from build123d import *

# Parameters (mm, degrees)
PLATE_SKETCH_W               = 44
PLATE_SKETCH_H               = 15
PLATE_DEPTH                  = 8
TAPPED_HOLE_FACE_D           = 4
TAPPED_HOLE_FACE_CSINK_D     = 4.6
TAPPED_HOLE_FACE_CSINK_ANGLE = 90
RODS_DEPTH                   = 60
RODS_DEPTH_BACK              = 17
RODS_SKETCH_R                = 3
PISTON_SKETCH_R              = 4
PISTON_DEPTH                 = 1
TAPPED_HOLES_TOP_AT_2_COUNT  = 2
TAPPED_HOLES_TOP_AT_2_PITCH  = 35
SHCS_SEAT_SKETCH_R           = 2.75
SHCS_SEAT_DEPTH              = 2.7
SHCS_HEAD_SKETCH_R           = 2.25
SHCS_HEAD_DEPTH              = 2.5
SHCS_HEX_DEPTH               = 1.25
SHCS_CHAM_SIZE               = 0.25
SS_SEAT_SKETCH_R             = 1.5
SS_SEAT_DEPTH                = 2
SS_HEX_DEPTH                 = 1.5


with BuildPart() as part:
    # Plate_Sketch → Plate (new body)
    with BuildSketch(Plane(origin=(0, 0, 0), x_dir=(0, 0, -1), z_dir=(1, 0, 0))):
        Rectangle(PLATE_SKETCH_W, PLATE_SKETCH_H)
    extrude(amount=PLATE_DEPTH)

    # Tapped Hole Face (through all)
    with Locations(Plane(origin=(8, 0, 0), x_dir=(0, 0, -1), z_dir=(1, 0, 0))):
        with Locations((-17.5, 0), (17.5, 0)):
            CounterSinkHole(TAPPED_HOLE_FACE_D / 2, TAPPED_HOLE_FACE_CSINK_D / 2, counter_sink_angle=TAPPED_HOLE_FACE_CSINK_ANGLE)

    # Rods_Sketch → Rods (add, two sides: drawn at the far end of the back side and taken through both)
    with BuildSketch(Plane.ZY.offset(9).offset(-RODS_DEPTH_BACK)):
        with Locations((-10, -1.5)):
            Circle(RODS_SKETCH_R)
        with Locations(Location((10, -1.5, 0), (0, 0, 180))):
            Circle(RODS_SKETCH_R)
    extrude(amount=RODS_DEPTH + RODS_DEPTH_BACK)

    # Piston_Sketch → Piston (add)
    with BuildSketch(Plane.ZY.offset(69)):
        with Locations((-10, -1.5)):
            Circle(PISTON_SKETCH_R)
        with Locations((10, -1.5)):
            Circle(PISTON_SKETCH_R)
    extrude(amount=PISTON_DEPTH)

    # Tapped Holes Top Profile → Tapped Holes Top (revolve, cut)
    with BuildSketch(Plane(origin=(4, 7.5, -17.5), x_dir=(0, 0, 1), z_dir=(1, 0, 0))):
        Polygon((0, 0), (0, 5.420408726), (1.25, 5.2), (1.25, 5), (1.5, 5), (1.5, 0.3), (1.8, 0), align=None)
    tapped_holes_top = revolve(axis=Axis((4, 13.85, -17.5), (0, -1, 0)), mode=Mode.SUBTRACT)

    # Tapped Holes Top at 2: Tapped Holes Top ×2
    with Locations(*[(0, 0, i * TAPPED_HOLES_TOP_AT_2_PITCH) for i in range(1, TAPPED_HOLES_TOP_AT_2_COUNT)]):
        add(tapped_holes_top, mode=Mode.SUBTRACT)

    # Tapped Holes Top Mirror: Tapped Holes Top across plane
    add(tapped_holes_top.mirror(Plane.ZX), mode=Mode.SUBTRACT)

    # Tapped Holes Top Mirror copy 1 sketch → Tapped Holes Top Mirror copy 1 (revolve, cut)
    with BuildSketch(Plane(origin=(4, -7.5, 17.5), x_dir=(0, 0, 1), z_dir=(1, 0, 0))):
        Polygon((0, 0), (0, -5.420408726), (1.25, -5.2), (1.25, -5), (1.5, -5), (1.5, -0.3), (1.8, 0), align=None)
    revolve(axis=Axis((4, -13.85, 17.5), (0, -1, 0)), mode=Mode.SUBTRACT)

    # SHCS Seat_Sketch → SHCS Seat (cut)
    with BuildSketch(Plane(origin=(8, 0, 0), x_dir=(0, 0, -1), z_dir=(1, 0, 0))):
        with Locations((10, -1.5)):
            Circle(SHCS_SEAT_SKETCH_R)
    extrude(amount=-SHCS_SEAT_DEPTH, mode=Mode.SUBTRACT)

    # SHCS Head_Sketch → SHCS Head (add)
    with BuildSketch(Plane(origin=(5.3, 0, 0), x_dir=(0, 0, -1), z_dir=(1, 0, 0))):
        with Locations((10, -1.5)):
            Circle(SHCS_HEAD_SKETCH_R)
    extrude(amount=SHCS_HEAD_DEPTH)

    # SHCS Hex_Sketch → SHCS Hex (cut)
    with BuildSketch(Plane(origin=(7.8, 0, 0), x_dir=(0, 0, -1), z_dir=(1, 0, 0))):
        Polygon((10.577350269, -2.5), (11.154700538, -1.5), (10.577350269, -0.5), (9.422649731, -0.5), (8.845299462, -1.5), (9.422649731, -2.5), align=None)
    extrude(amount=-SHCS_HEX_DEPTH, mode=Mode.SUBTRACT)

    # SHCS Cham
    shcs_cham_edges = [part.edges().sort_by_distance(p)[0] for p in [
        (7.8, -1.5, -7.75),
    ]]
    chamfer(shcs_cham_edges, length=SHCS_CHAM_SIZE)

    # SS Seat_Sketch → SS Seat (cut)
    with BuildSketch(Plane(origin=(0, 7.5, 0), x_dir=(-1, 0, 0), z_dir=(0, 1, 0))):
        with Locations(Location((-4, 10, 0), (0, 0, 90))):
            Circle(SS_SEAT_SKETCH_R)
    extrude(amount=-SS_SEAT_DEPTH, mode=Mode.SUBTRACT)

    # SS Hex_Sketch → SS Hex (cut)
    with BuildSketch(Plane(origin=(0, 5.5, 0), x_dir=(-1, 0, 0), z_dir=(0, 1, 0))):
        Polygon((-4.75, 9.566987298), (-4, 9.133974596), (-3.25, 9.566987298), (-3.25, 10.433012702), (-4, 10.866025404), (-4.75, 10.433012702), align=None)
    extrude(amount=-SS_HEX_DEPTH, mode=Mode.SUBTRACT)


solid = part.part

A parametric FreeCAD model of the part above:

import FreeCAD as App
import Part
import Sketcher
from FreeCAD import Vector
Q = App.Units.Quantity


def edges_at(feature, points):
    """Names of the edges that pass closest to the given points."""
    edges = feature.Shape.Edges
    near = lambda p: min(range(len(edges)), key=lambda i: edges[i].distToShape(Part.Vertex(*p))[0])
    return sorted({f"Edge{near(p) + 1}" for p in points})


def add_polygon(sketch, points):
    """Adds a closed chain of lines whose ends are joined by coincident constraints."""
    first, n = sketch.GeometryCount, len(points)
    for a, b in zip(points, points[1:] + points[:1]):
        sketch.addGeometry(Part.LineSegment(App.Vector(*a, 0), App.Vector(*b, 0)), False)
    for i in range(n):
        sketch.addConstraint(Sketcher.Constraint("Coincident", first + i, 2, first + (i + 1) % n, 1))

doc = App.newDocument("Part")
params = doc.addObject("Spreadsheet::Sheet", "Params")
for row, (alias, value) in enumerate([
    ("sketch1_width", "15 mm"),
    ("sketch1_height", "44 mm"),
    ("pad1_length", "8 mm"),
    ("sketch2_diameter", "4 mm"),
    ("hole_diameter", "4 mm"),
    ("hole_csink_diameter", "4.6 mm"),
    ("sketch3_diameter", "6 mm"),
    ("pad2_length", "60 mm"),
    ("pad2_length2", "17 mm"),
    ("sketch4_diameter", "8 mm"),
    ("pad3_length", "1 mm"),
    ("sketch5_width", "4.7 mm"),
    ("sketch5_width2", "0.2 mm"),
    ("sketch5_height", "1.8 mm"),
    ("sketch5_height2", "0.25 mm"),
    ("groove_angle", "360 deg"),
    ("linearpattern_pitch", "35 mm"),
    ("sketch6_width", "0.2 mm"),
    ("sketch6_width2", "4.7 mm"),
    ("sketch6_height", "1.8 mm"),
    ("sketch6_height2", "0.25 mm"),
    ("groove2_angle", "360 deg"),
    ("sketch7_diameter", "5.5 mm"),
    ("pocket1_length", "2.7 mm"),
    ("sketch8_diameter", "4.5 mm"),
    ("pad4_length", "2.5 mm"),
    ("pocket2_length", "1.25 mm"),
    ("chamfer_size", "0.25 mm"),
    ("sketch10_diameter", "3 mm"),
    ("pocket3_length", "2 mm"),
    ("pocket4_length", "1.5 mm"),
], start=1):
    params.set(f"A{row}", alias)
    params.set(f"B{row}", "=" + value)
    params.setAlias(f"B{row}", alias)

body = doc.addObject("PartDesign::Body", "Body")

sketch1 = body.newObject("Sketcher::SketchObject", "Sketch")
sketch1.AttachmentSupport = (doc.getObject("YZ_Plane"), [""])
sketch1.MapMode = "FlatFace"
add_polygon(sketch1, [(8, 22), (-8, 22), (-8, -22), (8, -22)])
sketch1.addConstraint(Sketcher.Constraint("Horizontal", 0))
sketch1.addConstraint(Sketcher.Constraint("Vertical", 1))
sketch1.addConstraint(Sketcher.Constraint("Horizontal", 2))
sketch1.addConstraint(Sketcher.Constraint("Vertical", 3))
sketch1.addConstraint(Sketcher.Constraint("Symmetric", 0, 2, 2, 2, -1, 1))
sketch1.addConstraint(Sketcher.Constraint("DistanceX", 0, 2, 0, 1, Q("15 mm")))
sketch1.addConstraint(Sketcher.Constraint("DistanceY", 1, 2, 1, 1, Q("44 mm")))
sketch1.setExpression("Constraints[9]", "Params.sketch1_width")
sketch1.setExpression("Constraints[10]", "Params.sketch1_height")
pad1 = body.newObject("PartDesign::Pad", "Pad")
pad1.Profile = sketch1
pad1.setExpression("Length", "Params.pad1_length")

sketch2 = body.newObject("Sketcher::SketchObject", "Sketch001")
sketch2.AttachmentSupport = (doc.getObject("YZ_Plane"), [""])
sketch2.MapMode = "FlatFace"
sketch2.AttachmentOffset = App.Placement(Vector(0, 0, 8), App.Rotation())
sketch2.addGeometry(Part.Circle(Vector(0, 17.5, 0), Vector(0, 0, 1), 2), False)
sketch2.addGeometry(Part.Circle(Vector(0, -17.5, 0), Vector(0, 0, 1), 2), False)
sketch2.addConstraint(Sketcher.Constraint("Equal", 0, 1))
sketch2.addConstraint(Sketcher.Constraint("Symmetric", 0, 3, 1, 3, -1, 1))
sketch2.addConstraint(Sketcher.Constraint("PointOnObject", 0, 3, -2))
sketch2.addConstraint(Sketcher.Constraint("Diameter", 0, Q("4 mm")))
sketch2.addConstraint(Sketcher.Constraint("DistanceY", 1, 3, 0, 3, Q("35 mm")))
sketch2.setExpression("Constraints[3]", "Params.sketch2_diameter")
doc.recompute()
hole = body.newObject("PartDesign::Hole", "Hole")
hole.Profile = sketch2
hole.ThreadType = "None"
hole.setExpression("Diameter", "Params.hole_diameter")
hole.DepthType = "ThroughAll"
hole.HoleCutType = "Countersink"
hole.setExpression("HoleCutDiameter", "Params.hole_csink_diameter")
hole.HoleCutCountersinkAngle = 90

sketch3 = body.newObject("Sketcher::SketchObject", "Sketch002")
sketch3.AttachmentSupport = (doc.getObject("YZ_Plane"), [""])
sketch3.MapMode = "FlatFace"
sketch3.AttachmentOffset = App.Placement(Vector(0, 0, -9), App.Rotation())
sketch3.addGeometry(Part.Circle(Vector(-1.5, -10, 0), Vector(0, 0, 1), 3), False)
sketch3.addGeometry(Part.Circle(Vector(-1.5, 10, 0), Vector(0, 0, 1), 3), False)
sketch3.addConstraint(Sketcher.Constraint("Equal", 0, 1))
sketch3.addConstraint(Sketcher.Constraint("Symmetric", 0, 3, 1, 3, -1))
sketch3.addConstraint(Sketcher.Constraint("Diameter", 0, Q("6 mm")))
sketch3.addConstraint(Sketcher.Constraint("DistanceY", 0, 3, -1, 1, Q("10 mm")))
sketch3.addConstraint(Sketcher.Constraint("DistanceX", 0, 3, -1, 1, Q("1.5 mm")))
sketch3.setExpression("Constraints[2]", "Params.sketch3_diameter")
pad2 = body.newObject("PartDesign::Pad", "Pad001")
pad2.Profile = sketch3
pad2.Type = "TwoLengths"
pad2.setExpression("Length", "Params.pad2_length")
pad2.setExpression("Length2", "Params.pad2_length2")
pad2.Reversed = True

sketch4 = body.newObject("Sketcher::SketchObject", "Sketch003")
sketch4.AttachmentSupport = (doc.getObject("YZ_Plane"), [""])
sketch4.MapMode = "FlatFace"
sketch4.AttachmentOffset = App.Placement(Vector(0, 0, -69), App.Rotation())
sketch4.addGeometry(Part.Circle(Vector(-1.5, -10, 0), Vector(0, 0, 1), 4), False)
sketch4.addGeometry(Part.Circle(Vector(-1.5, 10, 0), Vector(0, 0, 1), 4), False)
sketch4.addConstraint(Sketcher.Constraint("Equal", 0, 1))
sketch4.addConstraint(Sketcher.Constraint("Symmetric", 0, 3, 1, 3, -1))
sketch4.addConstraint(Sketcher.Constraint("Diameter", 0, Q("8 mm")))
sketch4.addConstraint(Sketcher.Constraint("DistanceY", 0, 3, -1, 1, Q("10 mm")))
sketch4.addConstraint(Sketcher.Constraint("DistanceX", 0, 3, -1, 1, Q("1.5 mm")))
sketch4.setExpression("Constraints[2]", "Params.sketch4_diameter")
pad3 = body.newObject("PartDesign::Pad", "Pad002")
pad3.Profile = sketch4
pad3.setExpression("Length", "Params.pad3_length")
pad3.Reversed = True

sketch5 = body.newObject("Sketcher::SketchObject", "Sketch004")
sketch5.AttachmentSupport = (doc.getObject("YZ_Plane"), [""])
sketch5.MapMode = "FlatFace"
sketch5.AttachmentOffset = App.Placement(Vector(0, 0, 4), App.Rotation())
add_polygon(sketch5, [(2.08, -17.5), (7.5, -17.5), (7.5, -15.7), (7.2, -16), (2.5, -16), (2.5, -16.25), (2.3, -16.25)])
sketch5.addGeometry(Part.LineSegment(Vector(7.5, -17.5, 0), Vector(2.08, -17.5, 0)), True)
sketch5.addConstraint(Sketcher.Constraint("Horizontal", 0))
sketch5.addConstraint(Sketcher.Constraint("Vertical", 1))
sketch5.addConstraint(Sketcher.Constraint("Horizontal", 3))
sketch5.addConstraint(Sketcher.Constraint("Vertical", 4))
sketch5.addConstraint(Sketcher.Constraint("Horizontal", 5))
sketch5.addConstraint(Sketcher.Constraint("Horizontal", 7))
sketch5.addConstraint(Sketcher.Constraint("Coincident", 7, 1, 0, 2))
sketch5.addConstraint(Sketcher.Constraint("Equal", 0, 7))
sketch5.addConstraint(Sketcher.Constraint("Angle", 2, Q("-135 deg")))
sketch5.addConstraint(Sketcher.Constraint("Angle", 6, Q("-100 deg")))
sketch5.addConstraint(Sketcher.Constraint("DistanceX", 3, 2, 3, 1, Q("4.7 mm")))
sketch5.addConstraint(Sketcher.Constraint("DistanceX", 5, 2, 5, 1, Q("0.2 mm")))
sketch5.addConstraint(Sketcher.Constraint("DistanceY", 1, 1, 1, 2, Q("1.8 mm")))
sketch5.addConstraint(Sketcher.Constraint("DistanceY", 2, 2, -1, 1, Q("16 mm")))
sketch5.addConstraint(Sketcher.Constraint("DistanceX", 3, 2, 1, 2, Q("5 mm")))
sketch5.addConstraint(Sketcher.Constraint("DistanceY", 4, 2, 4, 1, Q("0.25 mm")))
sketch5.addConstraint(Sketcher.Constraint("DistanceX", -1, 1, 0, 2, Q("7.5 mm")))
sketch5.setExpression("Constraints[17]", "Params.sketch5_width")
sketch5.setExpression("Constraints[18]", "Params.sketch5_width2")
sketch5.setExpression("Constraints[19]", "Params.sketch5_height")
sketch5.setExpression("Constraints[22]", "Params.sketch5_height2")
groove = body.newObject("PartDesign::Groove", "Groove")
groove.Profile = sketch5
groove.ReferenceAxis = (sketch5, ["Axis0"])
groove.setExpression("Angle", "Params.groove_angle")
doc.recompute()

linearpattern = body.newObject("PartDesign::LinearPattern", "LinearPattern")
linearpattern.Originals = [groove]
linearpattern.Direction = (doc.getObject("Z_Axis"), [""])
linearpattern.Mode = "offset"
linearpattern.setExpression("Offset", "Params.linearpattern_pitch")
linearpattern.Occurrences = 2
body.Tip = linearpattern
doc.recompute()

mirrored = body.newObject("PartDesign::Mirrored", "Mirrored")
mirrored.Originals = [groove]
mirrored.MirrorPlane = (doc.getObject("XZ_Plane"), [""])
body.Tip = mirrored

sketch6 = body.newObject("Sketcher::SketchObject", "Sketch005")
sketch6.AttachmentSupport = (doc.getObject("YZ_Plane"), [""])
sketch6.MapMode = "FlatFace"
sketch6.AttachmentOffset = App.Placement(Vector(0, 0, 4), App.Rotation())
add_polygon(sketch6, [(-7.5, 17.5), (-2.08, 17.5), (-2.3, 18.75), (-2.5, 18.75), (-2.5, 19), (-7.2, 19), (-7.5, 19.3)])
sketch6.addGeometry(Part.LineSegment(Vector(-2.08, 17.5, 0), Vector(-7.5, 17.5, 0)), True)
sketch6.addConstraint(Sketcher.Constraint("Horizontal", 0))
sketch6.addConstraint(Sketcher.Constraint("Horizontal", 2))
sketch6.addConstraint(Sketcher.Constraint("Vertical", 3))
sketch6.addConstraint(Sketcher.Constraint("Horizontal", 4))
sketch6.addConstraint(Sketcher.Constraint("Vertical", 6))
sketch6.addConstraint(Sketcher.Constraint("Horizontal", 7))
sketch6.addConstraint(Sketcher.Constraint("Coincident", 7, 1, 0, 2))
sketch6.addConstraint(Sketcher.Constraint("Vertical", 5, 2, 7, 2))
sketch6.addConstraint(Sketcher.Constraint("Angle", 1, Q("100 deg")))
sketch6.addConstraint(Sketcher.Constraint("Angle", 5, Q("135 deg")))
sketch6.addConstraint(Sketcher.Constraint("DistanceX", 2, 2, 2, 1, Q("0.2 mm")))
sketch6.addConstraint(Sketcher.Constraint("DistanceX", 4, 2, 4, 1, Q("4.7 mm")))
sketch6.addConstraint(Sketcher.Constraint("DistanceY", 6, 2, 6, 1, Q("1.8 mm")))
sketch6.addConstraint(Sketcher.Constraint("DistanceY", -1, 1, 3, 2, Q("19 mm")))
sketch6.addConstraint(Sketcher.Constraint("DistanceX", 5, 2, 3, 2, Q("5 mm")))
sketch6.addConstraint(Sketcher.Constraint("DistanceY", 3, 1, 3, 2, Q("0.25 mm")))
sketch6.addConstraint(Sketcher.Constraint("DistanceX", 1, 2, -1, 1, Q("2.3 mm")))
sketch6.setExpression("Constraints[17]", "Params.sketch6_width")
sketch6.setExpression("Constraints[18]", "Params.sketch6_width2")
sketch6.setExpression("Constraints[19]", "Params.sketch6_height")
sketch6.setExpression("Constraints[22]", "Params.sketch6_height2")
groove2 = body.newObject("PartDesign::Groove", "Groove001")
groove2.Profile = sketch6
groove2.ReferenceAxis = (sketch6, ["Axis0"])
groove2.setExpression("Angle", "Params.groove2_angle")

sketch7 = body.newObject("Sketcher::SketchObject", "Sketch006")
sketch7.AttachmentSupport = (doc.getObject("YZ_Plane"), [""])
sketch7.MapMode = "FlatFace"
sketch7.AttachmentOffset = App.Placement(Vector(0, 0, 8), App.Rotation())
sketch7.addGeometry(Part.Circle(Vector(-1.5, -10, 0), Vector(0, 0, 1), 2.8), False)
sketch7.addConstraint(Sketcher.Constraint("Diameter", 0, Q("5.5 mm")))
sketch7.addConstraint(Sketcher.Constraint("DistanceY", 0, 3, -1, 1, Q("10 mm")))
sketch7.addConstraint(Sketcher.Constraint("DistanceX", 0, 3, -1, 1, Q("1.5 mm")))
sketch7.setExpression("Constraints[0]", "Params.sketch7_diameter")
pocket1 = body.newObject("PartDesign::Pocket", "Pocket")
pocket1.Profile = sketch7
pocket1.setExpression("Length", "Params.pocket1_length")

sketch8 = body.newObject("Sketcher::SketchObject", "Sketch007")
sketch8.AttachmentSupport = (doc.getObject("YZ_Plane"), [""])
sketch8.MapMode = "FlatFace"
sketch8.AttachmentOffset = App.Placement(Vector(0, 0, 5.3), App.Rotation())
sketch8.addGeometry(Part.Circle(Vector(-1.5, -10, 0), Vector(0, 0, 1), 2.2), False)
sketch8.addConstraint(Sketcher.Constraint("Diameter", 0, Q("4.5 mm")))
sketch8.addConstraint(Sketcher.Constraint("DistanceY", 0, 3, -1, 1, Q("10 mm")))
sketch8.addConstraint(Sketcher.Constraint("DistanceX", 0, 3, -1, 1, Q("1.5 mm")))
sketch8.setExpression("Constraints[0]", "Params.sketch8_diameter")
pad4 = body.newObject("PartDesign::Pad", "Pad003")
pad4.Profile = sketch8
pad4.setExpression("Length", "Params.pad4_length")

sketch9 = body.newObject("Sketcher::SketchObject", "Sketch008")
sketch9.AttachmentSupport = (doc.getObject("YZ_Plane"), [""])
sketch9.MapMode = "FlatFace"
sketch9.AttachmentOffset = App.Placement(Vector(0, 0, 7.8), App.Rotation())
add_polygon(sketch9, [(-2.5, -10.6), (-1.5, -11.2), (-0.5, -10.6), (-0.5, -9.4), (-1.5, -8.8), (-2.5, -9.4)])
sketch9.addConstraint(Sketcher.Constraint("Vertical", 2))
sketch9.addConstraint(Sketcher.Constraint("Vertical", 5))
sketch9.addConstraint(Sketcher.Constraint("Parallel", 0, 3))
sketch9.addConstraint(Sketcher.Constraint("Parallel", 1, 4))
sketch9.addConstraint(Sketcher.Constraint("Horizontal", 2, 2, 4, 2))
sketch9.addConstraint(Sketcher.Constraint("Horizontal", 1, 2, 5, 2))
sketch9.addConstraint(Sketcher.Constraint("Vertical", 0, 2, 3, 2))
sketch9.addConstraint(Sketcher.Constraint("Angle", 0, Q("-30 deg")))
sketch9.addConstraint(Sketcher.Constraint("DistanceX", 0, 2, 1, 2, Q("1 mm")))
sketch9.addConstraint(Sketcher.Constraint("DistanceX", 0, 2, -1, 1, Q("1.5 mm")))
sketch9.addConstraint(Sketcher.Constraint("DistanceY", 2, 1, 2, 2, Q("1.154701 mm")))
sketch9.addConstraint(Sketcher.Constraint("DistanceY", 0, 2, -1, 1, Q("11.154701 mm")))
pocket2 = body.newObject("PartDesign::Pocket", "Pocket001")
pocket2.Profile = sketch9
pocket2.setExpression("Length", "Params.pocket2_length")
doc.recompute()

chamfer = body.newObject("PartDesign::Chamfer", "Chamfer")
chamfer.Base = (pocket2, edges_at(pocket2, [(7.8, -1.5, -7.75)]))
chamfer.setExpression("Size", "Params.chamfer_size")

sketch10 = body.newObject("Sketcher::SketchObject", "Sketch009")
sketch10.AttachmentSupport = (doc.getObject("XZ_Plane"), [""])
sketch10.MapMode = "FlatFace"
sketch10.AttachmentOffset = App.Placement(Vector(0, 0, -7.5), App.Rotation())
sketch10.addGeometry(Part.Circle(Vector(4, 10, 0), Vector(0, 0, 1), 1.5), False)
sketch10.addConstraint(Sketcher.Constraint("Diameter", 0, Q("3 mm")))
sketch10.addConstraint(Sketcher.Constraint("DistanceX", -1, 1, 0, 3, Q("4 mm")))
sketch10.addConstraint(Sketcher.Constraint("DistanceY", -1, 1, 0, 3, Q("10 mm")))
sketch10.setExpression("Constraints[0]", "Params.sketch10_diameter")
pocket3 = body.newObject("PartDesign::Pocket", "Pocket002")
pocket3.Profile = sketch10
pocket3.setExpression("Length", "Params.pocket3_length")
pocket3.Reversed = True

sketch11 = body.newObject("Sketcher::SketchObject", "Sketch010")
sketch11.AttachmentSupport = (doc.getObject("XZ_Plane"), [""])
sketch11.MapMode = "FlatFace"
sketch11.AttachmentOffset = App.Placement(Vector(0, 0, -5.5), App.Rotation())
add_polygon(sketch11, [(4.8, 9.6), (4, 9.1), (3.2, 9.6), (3.2, 10.4), (4, 10.9), (4.8, 10.4)])
sketch11.addConstraint(Sketcher.Constraint("Vertical", 2))
sketch11.addConstraint(Sketcher.Constraint("Vertical", 5))
sketch11.addConstraint(Sketcher.Constraint("Parallel", 0, 3))
sketch11.addConstraint(Sketcher.Constraint("Parallel", 1, 4))
sketch11.addConstraint(Sketcher.Constraint("Horizontal", 2, 2, 4, 2))
sketch11.addConstraint(Sketcher.Constraint("Horizontal", 1, 2, 5, 2))
sketch11.addConstraint(Sketcher.Constraint("Vertical", 0, 2, 3, 2))
sketch11.addConstraint(Sketcher.Constraint("Angle", 0, Q("-150 deg")))
sketch11.addConstraint(Sketcher.Constraint("DistanceX", -1, 1, 0, 2, Q("4 mm")))
sketch11.addConstraint(Sketcher.Constraint("DistanceX", 2, 2, 4, 2, Q("1.5 mm")))
sketch11.addConstraint(Sketcher.Constraint("DistanceY", 2, 1, 2, 2, Q("0.866025 mm")))
sketch11.addConstraint(Sketcher.Constraint("DistanceY", -1, 1, 0, 2, Q("9.133975 mm")))
pocket4 = body.newObject("PartDesign::Pocket", "Pocket003")
pocket4.Profile = sketch11
pocket4.setExpression("Length", "Params.pocket4_length")
pocket4.Reversed = True

doc.recompute()
